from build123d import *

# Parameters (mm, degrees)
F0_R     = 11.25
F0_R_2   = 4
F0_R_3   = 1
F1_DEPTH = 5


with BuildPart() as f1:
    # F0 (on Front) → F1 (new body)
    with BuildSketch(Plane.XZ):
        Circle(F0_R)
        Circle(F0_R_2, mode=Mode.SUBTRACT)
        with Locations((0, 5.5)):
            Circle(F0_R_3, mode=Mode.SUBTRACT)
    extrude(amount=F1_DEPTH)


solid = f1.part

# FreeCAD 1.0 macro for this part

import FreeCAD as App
import Part
import Sketcher
from FreeCAD import Vector
Q = App.Units.Quantity

doc = App.newDocument("Part")
body = doc.addObject("PartDesign::Body", "Body")

# Sketch on XZ plane
sketch1 = body.newObject("Sketcher::SketchObject", "Sketch")
sketch1.AttachmentSupport = (doc.getObject("XZ_Plane"), [""])
sketch1.MapMode = "FlatFace"
sketch1.addGeometry([
    Part.Circle(Vector(0, 0, 0), Vector(0, 0, 1), 11.2),
    Part.Circle(Vector(0, 0, 0), Vector(0, 0, 1), 4),
    Part.Circle(Vector(0, 5.5, 0), Vector(0, 0, 1), 1),
], False)
sketch1.addConstraint([
    Sketcher.Constraint("Coincident", 0, 3, -1, 1),
    Sketcher.Constraint("Coincident", 1, 3, -1, 1),
    Sketcher.Constraint("PointOnObject", 2, 3, -2),
    Sketcher.Constraint("Diameter", 1, Q("8 mm")),
    Sketcher.Constraint("Diameter", 2, Q("2 mm")),
    Sketcher.Constraint("Diameter", 0, Q("22.5 mm")),
    Sketcher.Constraint("DistanceY", -1, 1, 2, 3, Q("5.5 mm")),
])
pad1 = body.newObject("PartDesign::Pad", "Pad")
pad1.Profile = sketch1
pad1.Length = 5

doc.recompute()
